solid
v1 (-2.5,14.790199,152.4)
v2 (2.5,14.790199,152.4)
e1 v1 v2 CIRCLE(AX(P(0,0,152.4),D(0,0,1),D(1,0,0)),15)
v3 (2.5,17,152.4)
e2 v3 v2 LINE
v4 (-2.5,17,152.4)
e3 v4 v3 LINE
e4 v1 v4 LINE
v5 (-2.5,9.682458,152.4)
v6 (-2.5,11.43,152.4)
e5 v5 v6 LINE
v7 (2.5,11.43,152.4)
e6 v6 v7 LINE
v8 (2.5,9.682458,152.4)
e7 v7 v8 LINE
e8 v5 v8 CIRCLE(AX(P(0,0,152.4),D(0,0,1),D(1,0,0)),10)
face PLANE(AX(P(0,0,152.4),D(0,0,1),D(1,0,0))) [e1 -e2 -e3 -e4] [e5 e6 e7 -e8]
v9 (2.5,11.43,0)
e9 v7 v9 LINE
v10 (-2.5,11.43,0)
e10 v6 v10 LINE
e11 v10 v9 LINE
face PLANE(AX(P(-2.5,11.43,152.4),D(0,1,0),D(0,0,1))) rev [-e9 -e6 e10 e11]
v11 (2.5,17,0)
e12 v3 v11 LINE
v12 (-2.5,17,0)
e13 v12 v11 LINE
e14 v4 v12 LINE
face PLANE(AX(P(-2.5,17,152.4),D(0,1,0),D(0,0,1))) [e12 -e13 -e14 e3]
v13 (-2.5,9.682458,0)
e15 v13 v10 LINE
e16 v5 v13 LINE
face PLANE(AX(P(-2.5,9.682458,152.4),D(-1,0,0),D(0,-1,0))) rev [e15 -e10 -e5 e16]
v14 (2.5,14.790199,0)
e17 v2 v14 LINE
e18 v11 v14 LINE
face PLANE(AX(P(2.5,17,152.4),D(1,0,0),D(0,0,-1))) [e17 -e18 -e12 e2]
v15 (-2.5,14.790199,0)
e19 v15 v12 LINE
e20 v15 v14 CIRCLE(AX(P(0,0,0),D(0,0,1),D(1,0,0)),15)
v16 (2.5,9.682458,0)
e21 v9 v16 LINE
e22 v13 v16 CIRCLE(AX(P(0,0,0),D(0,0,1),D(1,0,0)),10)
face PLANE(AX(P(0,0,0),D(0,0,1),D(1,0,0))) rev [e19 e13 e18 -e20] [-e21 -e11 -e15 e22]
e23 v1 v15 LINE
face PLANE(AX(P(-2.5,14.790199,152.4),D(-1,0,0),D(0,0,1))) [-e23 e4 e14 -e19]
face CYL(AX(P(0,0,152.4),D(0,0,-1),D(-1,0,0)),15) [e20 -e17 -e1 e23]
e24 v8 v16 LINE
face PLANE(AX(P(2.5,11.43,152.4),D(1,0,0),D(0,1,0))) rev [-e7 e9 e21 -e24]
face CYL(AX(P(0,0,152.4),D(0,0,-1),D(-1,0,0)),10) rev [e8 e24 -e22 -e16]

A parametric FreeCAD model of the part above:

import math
import FreeCAD as App
import Part
import Sketcher

V = App.Vector

doc = App.newDocument("Part")
body = doc.addObject("PartDesign::Body", "Body")

# Sketch on XY plane
sketch1 = body.newObject("Sketcher::SketchObject", "Sketch")
sketch1.AttachmentSupport = (doc.getObject("XY_Plane"), [""])
sketch1.MapMode = "FlatFace"
sketch1.addGeometry([
    Part.LineSegment(V(-2.5, 17, 0), V(-2.5, 14.8, 0)),  # 0
    Part.ArcOfCircle(Part.Circle(V(0, 0, 0), V(0, 0, 1), 15), math.radians(100), math.radians(440)),  # 1
    Part.LineSegment(V(2.5, 14.8, 0), V(2.5, 17, 0)),  # 2
    Part.LineSegment(V(2.5, 17, 0), V(-2.5, 17, 0)),  # 3
    Part.LineSegment(V(-2.5, 9.7, 0), V(-2.5, 11.4, 0)),  # 4
    Part.LineSegment(V(-2.5, 11.4, 0), V(2.5, 11.4, 0)),  # 5
    Part.LineSegment(V(2.5, 11.4, 0), V(2.5, 9.7, 0)),  # 6
    Part.ArcOfCircle(Part.Circle(V(0, 0, 0), V(0, 0, 1), 10), math.radians(104), math.radians(436)),  # 7
], False)
sketch1.addConstraint([
    Sketcher.Constraint("Coincident", 0, 2, 1, 1),
    Sketcher.Constraint("Coincident", 1, 2, 2, 1),
    Sketcher.Constraint("Coincident", 2, 2, 3, 1),
    Sketcher.Constraint("Coincident", 3, 2, 0, 1),
    Sketcher.Constraint("Coincident", 4, 2, 5, 1),
    Sketcher.Constraint("Coincident", 5, 2, 6, 1),
    Sketcher.Constraint("Coincident", 6, 2, 7, 2),
    Sketcher.Constraint("Coincident", 7, 1, 4, 1),
    Sketcher.Constraint("Vertical", 0),
    Sketcher.Constraint("Vertical", 2),
    Sketcher.Constraint("Horizontal", 3),
    Sketcher.Constraint("Vertical", 4),
    Sketcher.Constraint("Horizontal", 5),
    Sketcher.Constraint("Vertical", 6),
    Sketcher.Constraint("Coincident", 1, 3, -1, 1),
    Sketcher.Constraint("Coincident", 7, 3, -1, 1),
    Sketcher.Constraint("Horizontal", 0, 2, 1, 2),
    Sketcher.Constraint("Horizontal", 6, 2, 7, 1),
    Sketcher.Constraint("Vertical", 3, 2, 4, 2),
    Sketcher.Constraint("Radius", 1, 15.0),
    Sketcher.Constraint("Radius", 7, 10.0),
    Sketcher.Constraint("DistanceX", 3, 2, 3, 1, 5.0),
    Sketcher.Constraint("DistanceY", -1, 1, 2, 2, 17.0),
    Sketcher.Constraint("DistanceY", -1, 1, 4, 2, 11.43),
])
pad1 = body.newObject("PartDesign::Pad", "Pad")
pad1.Profile = sketch1
pad1.Length = 152.4

doc.recompute()
